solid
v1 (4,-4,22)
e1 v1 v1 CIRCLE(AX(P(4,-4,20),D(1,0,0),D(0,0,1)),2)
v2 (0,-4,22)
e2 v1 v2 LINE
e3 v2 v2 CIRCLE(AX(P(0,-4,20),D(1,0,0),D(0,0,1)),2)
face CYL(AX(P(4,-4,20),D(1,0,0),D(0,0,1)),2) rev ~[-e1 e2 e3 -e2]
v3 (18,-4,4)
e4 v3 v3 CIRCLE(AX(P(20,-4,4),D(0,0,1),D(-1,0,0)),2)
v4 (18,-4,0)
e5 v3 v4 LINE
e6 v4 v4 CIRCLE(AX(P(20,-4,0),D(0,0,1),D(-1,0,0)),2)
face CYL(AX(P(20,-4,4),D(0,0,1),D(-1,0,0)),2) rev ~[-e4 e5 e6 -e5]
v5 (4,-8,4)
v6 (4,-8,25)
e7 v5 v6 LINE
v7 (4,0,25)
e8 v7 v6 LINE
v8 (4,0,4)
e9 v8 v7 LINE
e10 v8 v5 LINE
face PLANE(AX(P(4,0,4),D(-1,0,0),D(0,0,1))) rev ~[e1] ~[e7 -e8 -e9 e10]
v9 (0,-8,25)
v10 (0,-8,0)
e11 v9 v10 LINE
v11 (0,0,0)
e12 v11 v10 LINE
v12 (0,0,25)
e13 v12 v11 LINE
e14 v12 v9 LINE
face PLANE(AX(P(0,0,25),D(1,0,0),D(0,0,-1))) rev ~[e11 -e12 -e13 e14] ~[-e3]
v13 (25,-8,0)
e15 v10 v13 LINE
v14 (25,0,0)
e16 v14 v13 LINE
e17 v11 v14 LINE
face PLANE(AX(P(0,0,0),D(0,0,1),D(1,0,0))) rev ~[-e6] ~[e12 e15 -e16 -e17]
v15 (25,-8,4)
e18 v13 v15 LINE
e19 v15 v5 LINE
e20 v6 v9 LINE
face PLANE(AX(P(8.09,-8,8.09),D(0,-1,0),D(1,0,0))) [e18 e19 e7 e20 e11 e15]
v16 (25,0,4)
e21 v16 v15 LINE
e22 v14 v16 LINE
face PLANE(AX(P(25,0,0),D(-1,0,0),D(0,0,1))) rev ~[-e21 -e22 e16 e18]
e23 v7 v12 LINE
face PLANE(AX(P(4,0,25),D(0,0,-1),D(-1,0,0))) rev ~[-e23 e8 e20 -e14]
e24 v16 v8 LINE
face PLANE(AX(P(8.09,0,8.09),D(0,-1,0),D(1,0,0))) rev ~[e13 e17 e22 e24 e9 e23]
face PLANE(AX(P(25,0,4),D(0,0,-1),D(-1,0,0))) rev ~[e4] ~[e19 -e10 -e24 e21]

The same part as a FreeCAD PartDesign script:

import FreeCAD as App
import Part
import Sketcher
from FreeCAD import Vector
Q = App.Units.Quantity


def add_polygon(sketch, points):
    """Adds a closed chain of lines whose ends are joined by coincident constraints."""
    first, n = sketch.GeometryCount, len(points)
    for a, b in zip(points, points[1:] + points[:1]):
        sketch.addGeometry(Part.LineSegment(App.Vector(*a, 0), App.Vector(*b, 0)), False)
    for i in range(n):
        sketch.addConstraint(Sketcher.Constraint("Coincident", first + i, 2, first + (i + 1) % n, 1))

doc = App.newDocument("Part")
body = doc.addObject("PartDesign::Body", "Body")

# Sketch on XZ plane
sketch1 = body.newObject("Sketcher::SketchObject", "Sketch")
sketch1.AttachmentSupport = (doc.getObject("XZ_Plane"), [""])
sketch1.MapMode = "FlatFace"
add_polygon(sketch1, [(4, 4), (4, 25), (0, 25), (0, 0), (25, 0), (25, 4)])  # lines 0-5
sketch1.addConstraint(Sketcher.Constraint("Vertical", 0))
sketch1.addConstraint(Sketcher.Constraint("Horizontal", 1))
sketch1.addConstraint(Sketcher.Constraint("Vertical", 2))
sketch1.addConstraint(Sketcher.Constraint("Horizontal", 3))
sketch1.addConstraint(Sketcher.Constraint("Vertical", 4))
sketch1.addConstraint(Sketcher.Constraint("Horizontal", 5))
sketch1.addConstraint(Sketcher.Constraint("Coincident", 2, 2, -1, 1))
sketch1.addConstraint(Sketcher.Constraint("Equal", 5, 0))
sketch1.addConstraint(Sketcher.Constraint("Equal", 3, 2))
sketch1.addConstraint(Sketcher.Constraint("DistanceX", 1, 2, 1, 1, Q("4 mm")))
sketch1.addConstraint(Sketcher.Constraint("DistanceX", 3, 1, 3, 2, Q("25 mm")))
pad1 = body.newObject("PartDesign::Pad", "Pad")
pad1.Profile = sketch1
pad1.Length = 8

# Sketch on XY plane
sketch2 = body.newObject("Sketcher::SketchObject", "Sketch001")
sketch2.AttachmentSupport = (doc.getObject("XY_Plane"), [""])
sketch2.MapMode = "FlatFace"
sketch2.AttachmentOffset = App.Placement(Vector(0, 0, 4), App.Rotation())
sketch2.addGeometry(Part.Circle(Vector(20, -4, 0), Vector(0, 0, 1), 2), False)
sketch2.addConstraint(Sketcher.Constraint("Diameter", 0, Q("4 mm")))
sketch2.addConstraint(Sketcher.Constraint("DistanceX", -1, 1, 0, 3, Q("20 mm")))
sketch2.addConstraint(Sketcher.Constraint("DistanceY", 0, 3, -1, 1, Q("4 mm")))
pocket1 = body.newObject("PartDesign::Pocket", "Pocket")
pocket1.Profile = sketch2
pocket1.Length = 5

# Sketch on YZ plane
sketch3 = body.newObject("Sketcher::SketchObject", "Sketch002")
sketch3.AttachmentSupport = (doc.getObject("YZ_Plane"), [""])
sketch3.MapMode = "FlatFace"
sketch3.AttachmentOffset = App.Placement(Vector(0, 0, 4), App.Rotation())
sketch3.addGeometry(Part.Circle(Vector(-4, 20, 0), Vector(0, 0, 1), 2), False)
sketch3.addConstraint(Sketcher.Constraint("Diameter", 0, Q("4 mm")))
sketch3.addConstraint(Sketcher.Constraint("DistanceX", 0, 3, -1, 1, Q("4 mm")))
sketch3.addConstraint(Sketcher.Constraint("DistanceY", -1, 1, 0, 3, Q("20 mm")))
pocket2 = body.newObject("PartDesign::Pocket", "Pocket001")
pocket2.Profile = sketch3
pocket2.Length = 5

doc.recompute()
